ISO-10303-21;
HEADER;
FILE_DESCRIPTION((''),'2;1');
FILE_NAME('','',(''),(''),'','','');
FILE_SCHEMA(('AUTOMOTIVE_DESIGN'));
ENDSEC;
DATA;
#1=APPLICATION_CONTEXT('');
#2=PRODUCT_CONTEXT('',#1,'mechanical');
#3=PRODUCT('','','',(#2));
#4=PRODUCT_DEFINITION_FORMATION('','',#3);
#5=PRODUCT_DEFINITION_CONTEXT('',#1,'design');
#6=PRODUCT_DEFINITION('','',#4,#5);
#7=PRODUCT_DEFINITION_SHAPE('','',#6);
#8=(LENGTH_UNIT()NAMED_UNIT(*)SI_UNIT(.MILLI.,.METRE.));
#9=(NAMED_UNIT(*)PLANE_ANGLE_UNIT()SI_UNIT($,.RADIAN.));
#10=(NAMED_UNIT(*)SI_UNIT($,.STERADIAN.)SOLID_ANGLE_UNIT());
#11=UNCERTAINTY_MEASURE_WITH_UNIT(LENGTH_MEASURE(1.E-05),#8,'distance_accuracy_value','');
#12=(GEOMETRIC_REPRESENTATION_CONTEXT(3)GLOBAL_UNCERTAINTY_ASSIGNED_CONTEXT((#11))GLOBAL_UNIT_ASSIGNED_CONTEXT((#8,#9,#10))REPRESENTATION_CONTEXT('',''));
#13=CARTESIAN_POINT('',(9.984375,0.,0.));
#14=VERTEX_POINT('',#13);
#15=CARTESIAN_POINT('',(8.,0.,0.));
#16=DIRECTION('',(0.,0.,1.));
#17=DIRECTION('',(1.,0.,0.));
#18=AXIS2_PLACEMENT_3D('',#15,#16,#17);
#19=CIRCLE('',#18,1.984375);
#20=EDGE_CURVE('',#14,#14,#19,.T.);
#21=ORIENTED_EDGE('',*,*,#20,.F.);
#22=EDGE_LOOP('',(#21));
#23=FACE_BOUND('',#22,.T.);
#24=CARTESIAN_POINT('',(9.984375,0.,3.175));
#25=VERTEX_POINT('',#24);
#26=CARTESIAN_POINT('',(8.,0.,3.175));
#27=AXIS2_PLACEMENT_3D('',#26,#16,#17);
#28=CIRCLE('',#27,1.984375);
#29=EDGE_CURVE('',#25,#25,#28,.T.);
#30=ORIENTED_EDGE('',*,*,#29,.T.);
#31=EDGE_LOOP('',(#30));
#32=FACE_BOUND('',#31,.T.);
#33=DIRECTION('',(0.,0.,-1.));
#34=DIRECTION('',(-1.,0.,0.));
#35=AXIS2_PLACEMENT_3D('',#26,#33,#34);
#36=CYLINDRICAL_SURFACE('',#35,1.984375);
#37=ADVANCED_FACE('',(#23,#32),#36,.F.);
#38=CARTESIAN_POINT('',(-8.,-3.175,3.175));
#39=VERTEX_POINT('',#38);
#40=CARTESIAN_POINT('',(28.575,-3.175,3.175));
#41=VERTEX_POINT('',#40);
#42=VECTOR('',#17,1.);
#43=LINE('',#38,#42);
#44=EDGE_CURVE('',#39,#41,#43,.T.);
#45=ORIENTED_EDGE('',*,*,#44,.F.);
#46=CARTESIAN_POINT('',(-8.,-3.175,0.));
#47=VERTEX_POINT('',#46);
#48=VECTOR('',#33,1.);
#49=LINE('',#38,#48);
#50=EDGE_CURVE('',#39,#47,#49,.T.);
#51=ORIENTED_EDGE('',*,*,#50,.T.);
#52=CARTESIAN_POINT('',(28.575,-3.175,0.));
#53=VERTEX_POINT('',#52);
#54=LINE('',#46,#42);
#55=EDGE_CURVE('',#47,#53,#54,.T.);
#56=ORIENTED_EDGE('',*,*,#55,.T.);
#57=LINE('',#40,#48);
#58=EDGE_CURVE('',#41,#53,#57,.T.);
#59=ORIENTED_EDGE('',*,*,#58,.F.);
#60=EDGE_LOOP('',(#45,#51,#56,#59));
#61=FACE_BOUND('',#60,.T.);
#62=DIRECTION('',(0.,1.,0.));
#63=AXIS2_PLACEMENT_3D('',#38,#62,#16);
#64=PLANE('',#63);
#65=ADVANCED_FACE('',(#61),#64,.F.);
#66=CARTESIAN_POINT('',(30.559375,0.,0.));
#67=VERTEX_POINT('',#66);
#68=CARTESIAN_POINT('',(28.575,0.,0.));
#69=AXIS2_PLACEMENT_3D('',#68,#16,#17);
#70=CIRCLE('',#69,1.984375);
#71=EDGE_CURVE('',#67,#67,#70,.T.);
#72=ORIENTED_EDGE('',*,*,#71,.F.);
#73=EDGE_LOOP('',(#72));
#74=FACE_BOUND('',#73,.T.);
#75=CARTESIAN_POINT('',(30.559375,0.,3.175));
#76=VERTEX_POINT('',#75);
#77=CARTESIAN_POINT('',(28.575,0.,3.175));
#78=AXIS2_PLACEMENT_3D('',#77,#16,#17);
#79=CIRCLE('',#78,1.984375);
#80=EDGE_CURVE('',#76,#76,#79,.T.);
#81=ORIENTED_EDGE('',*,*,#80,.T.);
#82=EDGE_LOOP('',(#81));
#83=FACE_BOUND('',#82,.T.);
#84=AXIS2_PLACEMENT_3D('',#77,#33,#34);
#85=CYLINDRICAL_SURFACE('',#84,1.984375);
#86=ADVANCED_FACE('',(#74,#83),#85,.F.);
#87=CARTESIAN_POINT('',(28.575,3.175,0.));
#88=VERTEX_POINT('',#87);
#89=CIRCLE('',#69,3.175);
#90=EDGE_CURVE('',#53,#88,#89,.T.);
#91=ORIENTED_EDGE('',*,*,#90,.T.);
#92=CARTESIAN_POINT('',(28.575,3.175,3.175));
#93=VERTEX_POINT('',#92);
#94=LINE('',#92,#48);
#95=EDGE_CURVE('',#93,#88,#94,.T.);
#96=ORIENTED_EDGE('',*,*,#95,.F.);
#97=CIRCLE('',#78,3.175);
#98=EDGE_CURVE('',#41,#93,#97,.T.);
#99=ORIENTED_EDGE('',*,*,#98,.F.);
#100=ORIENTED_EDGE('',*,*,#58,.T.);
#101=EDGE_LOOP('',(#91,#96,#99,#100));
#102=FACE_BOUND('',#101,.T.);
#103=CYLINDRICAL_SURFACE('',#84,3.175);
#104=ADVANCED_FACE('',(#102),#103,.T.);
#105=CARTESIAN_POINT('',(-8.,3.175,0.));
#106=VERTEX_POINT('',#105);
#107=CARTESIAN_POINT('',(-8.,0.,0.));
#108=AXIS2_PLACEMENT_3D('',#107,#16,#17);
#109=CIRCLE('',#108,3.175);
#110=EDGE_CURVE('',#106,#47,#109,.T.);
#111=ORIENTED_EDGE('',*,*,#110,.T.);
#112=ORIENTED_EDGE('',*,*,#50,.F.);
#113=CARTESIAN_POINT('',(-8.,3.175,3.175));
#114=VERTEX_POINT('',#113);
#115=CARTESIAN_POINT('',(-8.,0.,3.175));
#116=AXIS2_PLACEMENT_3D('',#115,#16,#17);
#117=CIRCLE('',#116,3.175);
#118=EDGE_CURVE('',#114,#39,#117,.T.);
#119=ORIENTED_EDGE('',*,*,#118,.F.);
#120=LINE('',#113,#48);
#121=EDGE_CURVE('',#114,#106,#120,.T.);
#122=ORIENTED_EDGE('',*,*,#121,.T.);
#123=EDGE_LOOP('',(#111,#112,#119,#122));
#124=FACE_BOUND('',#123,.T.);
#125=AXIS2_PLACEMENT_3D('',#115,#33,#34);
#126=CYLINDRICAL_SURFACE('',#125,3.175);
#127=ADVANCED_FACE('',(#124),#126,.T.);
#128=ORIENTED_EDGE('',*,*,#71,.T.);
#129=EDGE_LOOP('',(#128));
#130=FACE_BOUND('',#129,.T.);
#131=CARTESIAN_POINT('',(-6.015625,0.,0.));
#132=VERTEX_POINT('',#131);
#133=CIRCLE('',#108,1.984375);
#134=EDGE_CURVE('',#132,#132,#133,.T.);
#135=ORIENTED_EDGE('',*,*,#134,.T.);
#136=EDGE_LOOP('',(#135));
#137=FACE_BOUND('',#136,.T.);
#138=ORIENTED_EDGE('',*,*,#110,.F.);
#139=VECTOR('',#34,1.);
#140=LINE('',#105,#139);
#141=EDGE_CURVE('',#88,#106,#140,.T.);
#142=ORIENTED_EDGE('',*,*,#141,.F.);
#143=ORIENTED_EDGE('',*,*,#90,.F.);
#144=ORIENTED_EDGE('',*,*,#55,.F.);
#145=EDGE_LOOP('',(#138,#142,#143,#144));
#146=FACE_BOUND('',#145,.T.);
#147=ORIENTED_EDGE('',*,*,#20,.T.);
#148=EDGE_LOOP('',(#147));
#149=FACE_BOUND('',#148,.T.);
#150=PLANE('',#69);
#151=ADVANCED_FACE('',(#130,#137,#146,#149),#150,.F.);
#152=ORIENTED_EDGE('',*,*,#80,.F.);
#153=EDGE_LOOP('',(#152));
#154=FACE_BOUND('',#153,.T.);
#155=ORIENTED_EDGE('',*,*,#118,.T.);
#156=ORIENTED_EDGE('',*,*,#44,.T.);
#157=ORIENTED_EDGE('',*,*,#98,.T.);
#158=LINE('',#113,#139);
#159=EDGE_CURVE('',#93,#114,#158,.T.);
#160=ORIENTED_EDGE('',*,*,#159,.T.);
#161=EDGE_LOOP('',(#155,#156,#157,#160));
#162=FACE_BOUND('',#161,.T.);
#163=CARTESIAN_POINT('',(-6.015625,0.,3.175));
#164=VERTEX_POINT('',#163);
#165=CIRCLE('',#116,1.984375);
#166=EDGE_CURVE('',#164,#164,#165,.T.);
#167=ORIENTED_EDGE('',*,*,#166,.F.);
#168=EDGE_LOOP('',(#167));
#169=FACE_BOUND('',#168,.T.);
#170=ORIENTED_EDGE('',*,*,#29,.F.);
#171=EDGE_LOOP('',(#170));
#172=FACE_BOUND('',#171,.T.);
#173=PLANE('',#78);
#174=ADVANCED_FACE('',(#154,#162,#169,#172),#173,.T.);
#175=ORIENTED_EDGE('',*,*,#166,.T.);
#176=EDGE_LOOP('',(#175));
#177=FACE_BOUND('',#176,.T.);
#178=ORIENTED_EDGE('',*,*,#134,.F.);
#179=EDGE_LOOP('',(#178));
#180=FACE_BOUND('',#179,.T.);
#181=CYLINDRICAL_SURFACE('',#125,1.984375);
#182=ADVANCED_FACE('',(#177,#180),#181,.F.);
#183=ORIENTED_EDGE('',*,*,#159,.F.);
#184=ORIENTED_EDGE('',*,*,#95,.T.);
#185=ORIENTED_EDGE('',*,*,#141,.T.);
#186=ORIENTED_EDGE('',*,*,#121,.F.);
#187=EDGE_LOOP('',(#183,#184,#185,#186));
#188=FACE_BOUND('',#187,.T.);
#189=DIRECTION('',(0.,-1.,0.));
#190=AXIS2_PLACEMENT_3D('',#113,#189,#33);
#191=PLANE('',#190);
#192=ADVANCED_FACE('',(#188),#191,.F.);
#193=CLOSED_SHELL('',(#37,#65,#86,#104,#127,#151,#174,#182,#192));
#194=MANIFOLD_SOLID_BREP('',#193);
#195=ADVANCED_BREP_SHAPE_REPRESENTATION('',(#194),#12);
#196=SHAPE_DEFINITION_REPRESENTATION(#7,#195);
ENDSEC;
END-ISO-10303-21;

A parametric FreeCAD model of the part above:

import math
import FreeCAD as App
import Part
import Sketcher

V = App.Vector
Q = App.Units.Quantity

doc = App.newDocument("Part")
body = doc.addObject("PartDesign::Body", "Body")

# Sketch on XY plane
sketch1 = body.newObject("Sketcher::SketchObject", "Sketch")
sketch1.AttachmentSupport = (doc.getObject("XY_Plane"), [""])
sketch1.MapMode = "FlatFace"
sketch1.addGeometry(Part.LineSegment(V(-8, -3.2, 0), V(28.6, -3.2, 0)), False)
sketch1.addGeometry(Part.ArcOfCircle(Part.Circle(V(28.6, 0, 0), V(0, 0, 1), 3.2), math.radians(-90), math.radians(90)), False)
sketch1.addGeometry(Part.LineSegment(V(28.6, 3.2, 0), V(-8, 3.2, 0)), False)
sketch1.addGeometry(Part.ArcOfCircle(Part.Circle(V(-8, 0, 0), V(0, 0, 1), 3.2), math.radians(90), math.radians(270)), False)
sketch1.addGeometry(Part.Circle(V(-8, 0, 0), V(0, 0, 1), 2), False)
sketch1.addGeometry(Part.Circle(V(8, 0, 0), V(0, 0, 1), 2), False)
sketch1.addGeometry(Part.Circle(V(28.6, 0, 0), V(0, 0, 1), 2), False)
sketch1.addConstraint(Sketcher.Constraint("Tangent", 0, 2, 1, 1))
sketch1.addConstraint(Sketcher.Constraint("Tangent", 1, 2, 2, 1))
sketch1.addConstraint(Sketcher.Constraint("Tangent", 2, 2, 3, 1))
sketch1.addConstraint(Sketcher.Constraint("Tangent", 3, 2, 0, 1))
sketch1.addConstraint(Sketcher.Constraint("Horizontal", 0))
sketch1.addConstraint(Sketcher.Constraint("Horizontal", 2))
sketch1.addConstraint(Sketcher.Constraint("Coincident", 4, 3, 3, 3))
sketch1.addConstraint(Sketcher.Constraint("Coincident", 6, 3, 1, 3))
sketch1.addConstraint(Sketcher.Constraint("Equal", 4, 5))
sketch1.addConstraint(Sketcher.Constraint("Equal", 5, 6))
sketch1.addConstraint(Sketcher.Constraint("Symmetric", 3, 3, 5, 3, -1, 1))
sketch1.addConstraint(Sketcher.Constraint("PointOnObject", 1, 3, -1))
sketch1.addConstraint(Sketcher.Constraint("Diameter", 4, Q("0.15625 in")))
sketch1.addConstraint(Sketcher.Constraint("Radius", 1, Q("0.125 in")))
sketch1.addConstraint(Sketcher.Constraint("DistanceX", -1, 1, 1, 3, Q("1.125 in")))
sketch1.addConstraint(Sketcher.Constraint("DistanceX", 0, 1, 0, 2, Q("36.575 mm")))
pad1 = body.newObject("PartDesign::Pad", "Pad")
pad1.Profile = sketch1
pad1.Length = Q("0.125 in")

doc.recompute()
